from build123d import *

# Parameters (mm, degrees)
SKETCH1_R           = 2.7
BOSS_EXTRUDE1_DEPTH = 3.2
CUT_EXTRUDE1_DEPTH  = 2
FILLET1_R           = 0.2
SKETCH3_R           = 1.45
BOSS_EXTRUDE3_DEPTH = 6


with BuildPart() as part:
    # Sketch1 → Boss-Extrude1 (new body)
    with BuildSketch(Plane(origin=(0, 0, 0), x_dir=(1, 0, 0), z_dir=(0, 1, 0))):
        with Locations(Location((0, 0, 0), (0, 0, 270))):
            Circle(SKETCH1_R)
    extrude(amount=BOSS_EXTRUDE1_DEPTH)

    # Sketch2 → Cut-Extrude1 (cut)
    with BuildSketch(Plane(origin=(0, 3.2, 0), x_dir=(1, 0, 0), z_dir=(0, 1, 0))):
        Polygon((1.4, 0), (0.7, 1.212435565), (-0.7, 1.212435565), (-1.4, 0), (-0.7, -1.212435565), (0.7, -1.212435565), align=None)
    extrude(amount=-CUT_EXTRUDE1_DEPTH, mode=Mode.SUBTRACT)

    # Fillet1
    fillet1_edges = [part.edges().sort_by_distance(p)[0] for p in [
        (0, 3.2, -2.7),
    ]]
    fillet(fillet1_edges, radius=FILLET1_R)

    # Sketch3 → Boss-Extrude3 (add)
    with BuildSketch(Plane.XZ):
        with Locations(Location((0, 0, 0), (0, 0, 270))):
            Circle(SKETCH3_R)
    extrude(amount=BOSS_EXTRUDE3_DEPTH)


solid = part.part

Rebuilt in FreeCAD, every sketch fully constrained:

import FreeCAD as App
import Part
import Sketcher
from FreeCAD import Vector
Q = App.Units.Quantity


def edges_at(feature, points):
    """Names of the edges that pass closest to the given points."""
    edges = feature.Shape.Edges
    near = lambda p: min(range(len(edges)), key=lambda i: edges[i].distToShape(Part.Vertex(*p))[0])
    return sorted({f"Edge{near(p) + 1}" for p in points})

doc = App.newDocument("Part")
params = doc.addObject("Spreadsheet::Sheet", "Params")
for row, (alias, value) in enumerate([
    ("sketch1_diameter", "5.4 mm"),
    ("pad1_length", "3.2 mm"),
    ("sketch2_width", "1.4 mm"),
    ("sketch2_length", "1.4 mm"),
    ("pocket1_length", "2 mm"),
    ("fillet_radius", "0.2 mm"),
    ("sketch3_diameter", "2.9 mm"),
    ("pad2_length", "6 mm"),
], start=1):
    params.set(f"A{row}", alias)
    params.set(f"B{row}", "=" + value)
    params.setAlias(f"B{row}", alias)

body = doc.addObject("PartDesign::Body", "Body")

# Sketch on XZ plane
sketch1 = doc.addObject("Sketcher::SketchObject", "Sketch")
body.addObject(sketch1)
sketch1.AttachmentSupport = (doc.XZ_Plane, [""])
sketch1.MapMode = "FlatFace"
sketch1.addGeometry(Part.Circle(Vector(0, 0, 0), Vector(0, 0, 1), 2.7), False)
sketch1.addConstraint([
    Sketcher.Constraint("Coincident", 0, 3, -1, 1),
    Sketcher.Constraint("Diameter", 0, 5.4),
])
sketch1.setExpression("Constraints[1]", "Params.sketch1_diameter")
pad1 = doc.addObject("PartDesign::Pad", "Pad")
body.addObject(pad1)
pad1.Profile = sketch1
pad1.setExpression("Length", "Params.pad1_length")
pad1.Reversed = True

# Sketch on XZ plane
sketch2 = doc.addObject("Sketcher::SketchObject", "Sketch001")
body.addObject(sketch2)
sketch2.AttachmentSupport = (doc.XZ_Plane, [""])
sketch2.MapMode = "FlatFace"
sketch2.AttachmentOffset = App.Placement(Vector(0, 0, -3.2), App.Rotation())
sketch2.addGeometry([
    Part.LineSegment(Vector(1.4, 0, 0), Vector(0.7, -1.212436, 0)),  # 0
    Part.LineSegment(Vector(0.7, -1.212436, 0), Vector(-0.7, -1.212436, 0)),  # 1
    Part.LineSegment(Vector(-0.7, -1.212436, 0), Vector(-1.4, 0, 0)),  # 2
    Part.LineSegment(Vector(-1.4, 0, 0), Vector(-0.7, 1.212436, 0)),  # 3
    Part.LineSegment(Vector(-0.7, 1.212436, 0), Vector(0.7, 1.212436, 0)),  # 4
    Part.LineSegment(Vector(0.7, 1.212436, 0), Vector(1.4, 0, 0)),  # 5
], False)
sketch2.addConstraint([
    Sketcher.Constraint("Coincident", 0, 2, 1, 1),
    Sketcher.Constraint("Coincident", 1, 2, 2, 1),
    Sketcher.Constraint("Coincident", 2, 2, 3, 1),
    Sketcher.Constraint("Coincident", 3, 2, 4, 1),
    Sketcher.Constraint("Coincident", 4, 2, 5, 1),
    Sketcher.Constraint("Coincident", 5, 2, 0, 1),
    Sketcher.Constraint("Horizontal", 1),
    Sketcher.Constraint("Horizontal", 4),
    Sketcher.Constraint("Symmetric", 0, 2, 3, 2, -1, 1),
    Sketcher.Constraint("Symmetric", 2, 2, 5, 2, -1, 1),
    Sketcher.Constraint("PointOnObject", 2, 2, -1),
    Sketcher.Constraint("Parallel", 2, 5),
    Sketcher.Constraint("Vertical", 1, 2, 3, 2),
    Sketcher.Constraint("Angle", 0, Q("-120 deg")),
    Sketcher.Constraint("DistanceX", 1, 2, 1, 1, 1.4),
    Sketcher.Constraint("Distance", 0, 1.4),
])
sketch2.setExpression("Constraints[14]", "Params.sketch2_width")
sketch2.setExpression("Constraints[15]", "Params.sketch2_length")
pocket1 = doc.addObject("PartDesign::Pocket", "Pocket")
body.addObject(pocket1)
pocket1.Profile = sketch2
pocket1.setExpression("Length", "Params.pocket1_length")
pocket1.Reversed = True
doc.recompute()

fillet = doc.addObject("PartDesign::Fillet", "Fillet")
body.addObject(fillet)
fillet.Base = (pocket1, edges_at(pocket1, [(0, 3.2, -2.7)]))
fillet.setExpression("Radius", "Params.fillet_radius")

# Sketch on XZ plane
sketch3 = doc.addObject("Sketcher::SketchObject", "Sketch002")
body.addObject(sketch3)
sketch3.AttachmentSupport = (doc.XZ_Plane, [""])
sketch3.MapMode = "FlatFace"
sketch3.addGeometry(Part.Circle(Vector(0, 0, 0), Vector(0, 0, 1), 1.45), False)
sketch3.addConstraint([
    Sketcher.Constraint("Coincident", 0, 3, -1, 1),
    Sketcher.Constraint("Diameter", 0, 2.9),
])
sketch3.setExpression("Constraints[1]", "Params.sketch3_diameter")
pad2 = doc.addObject("PartDesign::Pad", "Pad001")
body.addObject(pad2)
pad2.Profile = sketch3
pad2.setExpression("Length", "Params.pad2_length")

doc.recompute()
